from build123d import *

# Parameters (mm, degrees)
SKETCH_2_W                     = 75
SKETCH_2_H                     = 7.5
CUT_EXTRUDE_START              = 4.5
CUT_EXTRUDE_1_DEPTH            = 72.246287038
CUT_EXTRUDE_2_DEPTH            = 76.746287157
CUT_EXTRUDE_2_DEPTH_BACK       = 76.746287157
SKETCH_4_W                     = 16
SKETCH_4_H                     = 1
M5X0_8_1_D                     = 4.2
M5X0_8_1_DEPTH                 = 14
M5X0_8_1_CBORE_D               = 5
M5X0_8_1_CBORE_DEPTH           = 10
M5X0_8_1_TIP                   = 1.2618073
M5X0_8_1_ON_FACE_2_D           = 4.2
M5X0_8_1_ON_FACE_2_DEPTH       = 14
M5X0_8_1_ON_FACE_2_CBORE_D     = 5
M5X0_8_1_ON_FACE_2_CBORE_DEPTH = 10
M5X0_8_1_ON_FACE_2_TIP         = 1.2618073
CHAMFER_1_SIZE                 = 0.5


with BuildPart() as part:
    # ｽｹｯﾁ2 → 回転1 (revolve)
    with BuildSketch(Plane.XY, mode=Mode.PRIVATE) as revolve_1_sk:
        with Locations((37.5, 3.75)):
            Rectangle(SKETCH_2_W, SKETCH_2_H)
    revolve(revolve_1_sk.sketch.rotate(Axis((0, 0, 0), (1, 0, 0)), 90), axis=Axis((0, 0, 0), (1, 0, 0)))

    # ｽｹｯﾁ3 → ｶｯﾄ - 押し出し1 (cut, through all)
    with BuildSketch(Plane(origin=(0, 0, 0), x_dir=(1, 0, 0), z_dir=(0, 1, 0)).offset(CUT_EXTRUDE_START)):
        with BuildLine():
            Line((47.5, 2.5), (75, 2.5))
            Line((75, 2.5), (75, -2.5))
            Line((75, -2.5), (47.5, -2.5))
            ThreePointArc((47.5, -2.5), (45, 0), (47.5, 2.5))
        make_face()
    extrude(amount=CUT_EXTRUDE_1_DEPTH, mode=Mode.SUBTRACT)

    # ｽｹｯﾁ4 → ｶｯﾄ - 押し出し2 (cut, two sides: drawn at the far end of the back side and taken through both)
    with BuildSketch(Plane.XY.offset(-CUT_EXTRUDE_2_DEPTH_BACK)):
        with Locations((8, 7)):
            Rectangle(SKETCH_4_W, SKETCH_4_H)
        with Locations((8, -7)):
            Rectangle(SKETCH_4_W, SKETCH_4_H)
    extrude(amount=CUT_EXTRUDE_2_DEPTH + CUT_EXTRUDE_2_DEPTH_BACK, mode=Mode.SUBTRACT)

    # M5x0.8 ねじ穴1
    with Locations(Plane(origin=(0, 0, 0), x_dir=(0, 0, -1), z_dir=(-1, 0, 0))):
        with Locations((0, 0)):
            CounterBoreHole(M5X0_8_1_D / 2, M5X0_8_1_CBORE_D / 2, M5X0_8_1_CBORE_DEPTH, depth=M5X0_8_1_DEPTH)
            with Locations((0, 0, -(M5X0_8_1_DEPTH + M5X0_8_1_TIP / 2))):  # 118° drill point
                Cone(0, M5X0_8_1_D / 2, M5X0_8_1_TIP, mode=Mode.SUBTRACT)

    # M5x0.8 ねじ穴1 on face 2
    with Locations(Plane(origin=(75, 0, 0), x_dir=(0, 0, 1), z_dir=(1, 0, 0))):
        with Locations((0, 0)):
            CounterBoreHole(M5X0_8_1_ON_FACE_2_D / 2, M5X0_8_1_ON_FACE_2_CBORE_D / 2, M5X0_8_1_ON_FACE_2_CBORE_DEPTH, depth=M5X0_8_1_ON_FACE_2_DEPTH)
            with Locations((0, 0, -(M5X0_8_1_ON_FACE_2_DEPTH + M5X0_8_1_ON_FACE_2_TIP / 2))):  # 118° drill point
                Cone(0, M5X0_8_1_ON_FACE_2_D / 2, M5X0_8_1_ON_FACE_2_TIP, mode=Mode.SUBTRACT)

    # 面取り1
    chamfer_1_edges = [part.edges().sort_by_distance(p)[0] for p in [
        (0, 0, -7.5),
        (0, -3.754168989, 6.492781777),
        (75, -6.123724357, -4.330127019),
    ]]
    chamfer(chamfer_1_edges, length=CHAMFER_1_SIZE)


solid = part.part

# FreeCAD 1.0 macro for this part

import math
import FreeCAD as App
import Part
import Sketcher
Q = App.Units.Quantity


def edges_at(feature, points):
    """Names of the edges that pass closest to the given points."""
    edges = feature.Shape.Edges
    near = lambda p: min(range(len(edges)), key=lambda i: edges[i].distToShape(Part.Vertex(*p))[0])
    return sorted({f"Edge{near(p) + 1}" for p in points})

doc = App.newDocument("Part")
params = doc.addObject("Spreadsheet::Sheet", "Params")
for row, (alias, value) in enumerate([
    ("sketch1_width", "75 mm"),
    ("sketch1_height", "7.5 mm"),
    ("revolution_angle", "360 deg"),
    ("sketch2_radius", "2.5 mm"),
    ("sketch2_width", "27.5 mm"),
    ("sketch3_width", "16 mm"),
    ("sketch3_height", "1 mm"),
    ("sketch4_diameter", "4.2 mm"),
    ("hole_diameter", "4.2 mm"),
    ("hole_depth", "14 mm"),
    ("hole_cbore_diameter", "5 mm"),
    ("hole_cbore_depth", "10 mm"),
    ("sketch5_diameter", "4.2 mm"),
    ("hole2_diameter", "4.2 mm"),
    ("hole2_depth", "14 mm"),
    ("hole2_cbore_diameter", "5 mm"),
    ("hole2_cbore_depth", "10 mm"),
    ("chamfer_size", "0.5 mm"),
], start=1):
    params.set(f"A{row}", alias)
    params.set(f"B{row}", "=" + value)
    params.setAlias(f"B{row}", alias)

body = doc.addObject("PartDesign::Body", "Body")

sketch1 = body.newObject("Sketcher::SketchObject", "Sketch")
sketch1.AttachmentSupport = (doc.getObject("XY_Plane"), [""])
sketch1.MapMode = "FlatFace"
sketch1.addGeometry([
    Part.LineSegment(App.Vector(0, 8, 0), App.Vector(0, 0, 0)),
    Part.LineSegment(App.Vector(0, 0, 0), App.Vector(75, 0, 0)),
    Part.LineSegment(App.Vector(75, 0, 0), App.Vector(75, 8, 0)),
    Part.LineSegment(App.Vector(75, 8, 0), App.Vector(0, 8, 0)),
], False)
sketch1.addConstraint([
    Sketcher.Constraint("Coincident", 0, 2, 1, 1),
    Sketcher.Constraint("Coincident", 1, 2, 2, 1),
    Sketcher.Constraint("Coincident", 2, 2, 3, 1),
    Sketcher.Constraint("Coincident", 3, 2, 0, 1),
    Sketcher.Constraint("Vertical", 0),
    Sketcher.Constraint("Horizontal", 1),
    Sketcher.Constraint("Vertical", 2),
    Sketcher.Constraint("Horizontal", 3),
    Sketcher.Constraint("Coincident", 0, 2, -1, 1),
    Sketcher.Constraint("DistanceX", 1, 1, 1, 2, Q("75 mm")),
    Sketcher.Constraint("DistanceY", 0, 2, 0, 1, Q("7.5 mm")),
])
sketch1.setExpression("Constraints[9]", "Params.sketch1_width")
sketch1.setExpression("Constraints[10]", "Params.sketch1_height")
revolution = body.newObject("PartDesign::Revolution", "Revolution")
revolution.Profile = sketch1
revolution.ReferenceAxis = (sketch1, ["H_Axis"])
revolution.setExpression("Angle", "Params.revolution_angle")

sketch2 = body.newObject("Sketcher::SketchObject", "Sketch001")
sketch2.AttachmentSupport = (doc.getObject("XZ_Plane"), [""])
sketch2.MapMode = "FlatFace"
sketch2.AttachmentOffset = App.Placement(App.Vector(0, 0, -4.5), App.Rotation())
sketch2.addGeometry([
    Part.LineSegment(App.Vector(75, -2.5, 0), App.Vector(47.5, -2.5, 0)),
    Part.ArcOfCircle(Part.Circle(App.Vector(47.5, 0, 0), App.Vector(0, 0, 1), 2.5), math.radians(90), math.radians(270)),
    Part.LineSegment(App.Vector(47.5, 2.5, 0), App.Vector(75, 2.5, 0)),
    Part.LineSegment(App.Vector(75, 2.5, 0), App.Vector(75, -2.5, 0)),
], False)
sketch2.addConstraint([
    Sketcher.Constraint("Tangent", 0, 2, 1, 2),
    Sketcher.Constraint("Tangent", 1, 1, 2, 1),
    Sketcher.Constraint("Coincident", 2, 2, 3, 1),
    Sketcher.Constraint("Coincident", 3, 2, 0, 1),
    Sketcher.Constraint("Horizontal", 0),
    Sketcher.Constraint("Horizontal", 2),
    Sketcher.Constraint("Vertical", 3),
    Sketcher.Constraint("PointOnObject", 1, 3, -1),
    Sketcher.Constraint("Radius", 1, Q("2.5 mm")),
    Sketcher.Constraint("DistanceX", 0, 2, 0, 1, Q("27.5 mm")),
    Sketcher.Constraint("DistanceX", -1, 1, 2, 2, Q("75 mm")),
])
sketch2.setExpression("Constraints[8]", "Params.sketch2_radius")
sketch2.setExpression("Constraints[9]", "Params.sketch2_width")
pocket1 = body.newObject("PartDesign::Pocket", "Pocket")
pocket1.Profile = sketch2
pocket1.Type = "ThroughAll"

sketch3 = body.newObject("Sketcher::SketchObject", "Sketch002")
sketch3.AttachmentSupport = (doc.getObject("XY_Plane"), [""])
sketch3.MapMode = "FlatFace"
sketch3.addGeometry([
    Part.LineSegment(App.Vector(0, 7.5, 0), App.Vector(0, 6.5, 0)),
    Part.LineSegment(App.Vector(0, 6.5, 0), App.Vector(16, 6.5, 0)),
    Part.LineSegment(App.Vector(16, 6.5, 0), App.Vector(16, 7.5, 0)),
    Part.LineSegment(App.Vector(16, 7.5, 0), App.Vector(0, 7.5, 0)),
    Part.LineSegment(App.Vector(0, -6.5, 0), App.Vector(0, -7.5, 0)),
    Part.LineSegment(App.Vector(0, -7.5, 0), App.Vector(16, -7.5, 0)),
    Part.LineSegment(App.Vector(16, -7.5, 0), App.Vector(16, -6.5, 0)),
    Part.LineSegment(App.Vector(16, -6.5, 0), App.Vector(0, -6.5, 0)),
], False)
sketch3.addConstraint([
    Sketcher.Constraint("Coincident", 0, 2, 1, 1),
    Sketcher.Constraint("Coincident", 1, 2, 2, 1),
    Sketcher.Constraint("Coincident", 2, 2, 3, 1),
    Sketcher.Constraint("Coincident", 3, 2, 0, 1),
    Sketcher.Constraint("Coincident", 4, 2, 5, 1),
    Sketcher.Constraint("Coincident", 5, 2, 6, 1),
    Sketcher.Constraint("Coincident", 6, 2, 7, 1),
    Sketcher.Constraint("Coincident", 7, 2, 4, 1),
    Sketcher.Constraint("Vertical", 0),
    Sketcher.Constraint("Horizontal", 1),
    Sketcher.Constraint("Vertical", 2),
    Sketcher.Constraint("Horizontal", 3),
    Sketcher.Constraint("Vertical", 4),
    Sketcher.Constraint("Horizontal", 5),
    Sketcher.Constraint("Vertical", 6),
    Sketcher.Constraint("Horizontal", 7),
    Sketcher.Constraint("Symmetric", 3, 2, 4, 2, -1, 1),
    Sketcher.Constraint("Symmetric", 1, 2, 6, 2, -1),
    Sketcher.Constraint("PointOnObject", 0, 2, -2),
    Sketcher.Constraint("DistanceX", 1, 1, 1, 2, Q("16 mm")),
    Sketcher.Constraint("DistanceY", 0, 2, 0, 1, Q("1 mm")),
    Sketcher.Constraint("DistanceY", 4, 2, 0, 2, Q("14 mm")),
])
sketch3.setExpression("Constraints[19]", "Params.sketch3_width")
sketch3.setExpression("Constraints[20]", "Params.sketch3_height")
pocket2 = body.newObject("PartDesign::Pocket", "Pocket001")
pocket2.Profile = sketch3
pocket2.Type = "ThroughAll"
pocket2.Midplane = True

sketch4 = body.newObject("Sketcher::SketchObject", "Sketch003")
sketch4.AttachmentSupport = (doc.getObject("YZ_Plane"), [""])
sketch4.MapMode = "FlatFace"
sketch4.addGeometry(Part.Circle(App.Vector(0, 0, 0), App.Vector(0, 0, 1), 2.1), False)
sketch4.addConstraint([
    Sketcher.Constraint("Coincident", 0, 3, -1, 1),
    Sketcher.Constraint("Diameter", 0, Q("4.2 mm")),
])
sketch4.setExpression("Constraints[1]", "Params.sketch4_diameter")
doc.recompute()
hole = body.newObject("PartDesign::Hole", "Hole")
hole.Profile = sketch4
hole.ThreadType = "None"
hole.setExpression("Diameter", "Params.hole_diameter")
hole.DepthType = "Dimension"
hole.setExpression("Depth", "Params.hole_depth")
hole.DrillPoint = "Angled"
hole.DrillPointAngle = 118
hole.HoleCutType = "Counterbore"
hole.setExpression("HoleCutDiameter", "Params.hole_cbore_diameter")
hole.setExpression("HoleCutDepth", "Params.hole_cbore_depth")
hole.Reversed = True

sketch5 = body.newObject("Sketcher::SketchObject", "Sketch004")
sketch5.AttachmentSupport = (doc.getObject("YZ_Plane"), [""])
sketch5.MapMode = "FlatFace"
sketch5.AttachmentOffset = App.Placement(App.Vector(0, 0, 75), App.Rotation())
sketch5.addGeometry(Part.Circle(App.Vector(0, 0, 0), App.Vector(0, 0, 1), 2.1), False)
sketch5.addConstraint([
    Sketcher.Constraint("Coincident", 0, 3, -1, 1),
    Sketcher.Constraint("Diameter", 0, Q("4.2 mm")),
])
sketch5.setExpression("Constraints[1]", "Params.sketch5_diameter")
doc.recompute()
hole2 = body.newObject("PartDesign::Hole", "Hole001")
hole2.Profile = sketch5
hole2.ThreadType = "None"
hole2.setExpression("Diameter", "Params.hole2_diameter")
hole2.DepthType = "Dimension"
hole2.setExpression("Depth", "Params.hole2_depth")
hole2.DrillPoint = "Angled"
hole2.DrillPointAngle = 118
hole2.HoleCutType = "Counterbore"
hole2.setExpression("HoleCutDiameter", "Params.hole2_cbore_diameter")
hole2.setExpression("HoleCutDepth", "Params.hole2_cbore_depth")
doc.recompute()

chamfer = body.newObject("PartDesign::Chamfer", "Chamfer")
chamfer.Base = (hole2, edges_at(hole2, [(0, 0, -7.5), (0, -3.754, 6.493), (75, -6.124, -4.33)]))
chamfer.setExpression("Size", "Params.chamfer_size")

doc.recompute()
